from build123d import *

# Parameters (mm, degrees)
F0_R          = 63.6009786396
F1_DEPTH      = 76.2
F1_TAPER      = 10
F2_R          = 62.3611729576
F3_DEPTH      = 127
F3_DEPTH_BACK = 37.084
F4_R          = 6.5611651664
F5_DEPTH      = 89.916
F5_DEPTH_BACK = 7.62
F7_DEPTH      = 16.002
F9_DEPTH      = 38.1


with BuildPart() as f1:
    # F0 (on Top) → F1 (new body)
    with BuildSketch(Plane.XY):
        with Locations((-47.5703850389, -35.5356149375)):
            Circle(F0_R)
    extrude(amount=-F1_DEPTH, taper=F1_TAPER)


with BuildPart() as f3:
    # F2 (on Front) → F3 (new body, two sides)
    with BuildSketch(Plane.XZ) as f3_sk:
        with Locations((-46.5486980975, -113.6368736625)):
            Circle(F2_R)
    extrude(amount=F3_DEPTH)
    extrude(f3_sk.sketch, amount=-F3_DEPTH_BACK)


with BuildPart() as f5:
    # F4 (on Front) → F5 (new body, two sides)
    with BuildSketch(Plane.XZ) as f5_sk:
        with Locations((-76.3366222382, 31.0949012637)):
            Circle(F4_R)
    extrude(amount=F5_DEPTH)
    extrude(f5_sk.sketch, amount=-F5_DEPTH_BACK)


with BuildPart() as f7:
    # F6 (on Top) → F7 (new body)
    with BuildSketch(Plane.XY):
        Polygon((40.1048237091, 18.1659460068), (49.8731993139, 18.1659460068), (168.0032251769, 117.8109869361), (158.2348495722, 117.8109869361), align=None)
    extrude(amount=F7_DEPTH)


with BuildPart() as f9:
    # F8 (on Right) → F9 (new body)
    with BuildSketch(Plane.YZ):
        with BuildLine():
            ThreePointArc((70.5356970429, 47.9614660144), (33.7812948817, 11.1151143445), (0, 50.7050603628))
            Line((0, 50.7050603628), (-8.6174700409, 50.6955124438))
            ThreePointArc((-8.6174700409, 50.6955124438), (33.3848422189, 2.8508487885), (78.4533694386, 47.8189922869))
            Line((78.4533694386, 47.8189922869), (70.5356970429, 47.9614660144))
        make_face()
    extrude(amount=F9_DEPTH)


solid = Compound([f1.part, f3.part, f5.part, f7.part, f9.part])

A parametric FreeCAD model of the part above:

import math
import FreeCAD as App
import Part
import Sketcher
from FreeCAD import Vector
Q = App.Units.Quantity


def add_polygon(sketch, points):
    """Adds a closed chain of lines whose ends are joined by coincident constraints."""
    first, n = sketch.GeometryCount, len(points)
    for a, b in zip(points, points[1:] + points[:1]):
        sketch.addGeometry(Part.LineSegment(App.Vector(*a, 0), App.Vector(*b, 0)), False)
    for i in range(n):
        sketch.addConstraint(Sketcher.Constraint("Coincident", first + i, 2, first + (i + 1) % n, 1))

doc = App.newDocument("Part")
body = doc.addObject("PartDesign::Body", "Body")

# Sketch on XY plane
sketch1 = body.newObject("Sketcher::SketchObject", "Sketch")
sketch1.AttachmentSupport = (doc.getObject("XY_Plane"), [""])
sketch1.MapMode = "FlatFace"
sketch1.addGeometry(Part.Circle(Vector(-48, -36, 0), Vector(0, 0, 1), 64), False)
sketch1.addConstraint(Sketcher.Constraint("Diameter", 0, Q("127.201957 mm")))
sketch1.addConstraint(Sketcher.Constraint("DistanceX", 0, 3, -1, 1, Q("47.570385 mm")))
sketch1.addConstraint(Sketcher.Constraint("DistanceY", 0, 3, -1, 1, Q("35.535615 mm")))
pad1 = body.newObject("PartDesign::Pad", "Pad")
pad1.Profile = sketch1
pad1.Length = Q("3 in")
pad1.Reversed = True
pad1.TaperAngle = -10
body2 = doc.addObject("PartDesign::Body", "Body001")

# Sketch on XZ plane
sketch2 = body2.newObject("Sketcher::SketchObject", "Sketch001")
sketch2.AttachmentSupport = (doc.getObject("XZ_Plane001"), [""])
sketch2.MapMode = "FlatFace"
sketch2.addGeometry(Part.Circle(Vector(-47, -114, 0), Vector(0, 0, 1), 62), False)
sketch2.addConstraint(Sketcher.Constraint("Diameter", 0, Q("124.722346 mm")))
sketch2.addConstraint(Sketcher.Constraint("DistanceX", 0, 3, -1, 1, Q("46.548698 mm")))
sketch2.addConstraint(Sketcher.Constraint("DistanceY", 0, 3, -1, 1, Q("113.636874 mm")))
pad2 = body2.newObject("PartDesign::Pad", "Pad001")
pad2.Profile = sketch2
pad2.Type = "TwoLengths"
pad2.Length = Q("5 in")
pad2.Length2 = Q("1.46 in")
body3 = doc.addObject("PartDesign::Body", "Body002")

# Sketch on XZ plane
sketch3 = body3.newObject("Sketcher::SketchObject", "Sketch002")
sketch3.AttachmentSupport = (doc.getObject("XZ_Plane002"), [""])
sketch3.MapMode = "FlatFace"
sketch3.addGeometry(Part.Circle(Vector(-76, 31, 0), Vector(0, 0, 1), 7), False)
sketch3.addConstraint(Sketcher.Constraint("Diameter", 0, Q("13.12233 mm")))
sketch3.addConstraint(Sketcher.Constraint("DistanceY", -1, 1, 0, 3, Q("31.094901 mm")))
sketch3.addConstraint(Sketcher.Constraint("DistanceX", 0, 3, -1, 1, Q("76.336622 mm")))
pad3 = body3.newObject("PartDesign::Pad", "Pad002")
pad3.Profile = sketch3
pad3.Type = "TwoLengths"
pad3.Length = Q("3.54 in")
pad3.Length2 = Q("0.3 in")
body4 = doc.addObject("PartDesign::Body", "Body003")

# Sketch on XY plane
sketch4 = body4.newObject("Sketcher::SketchObject", "Sketch003")
sketch4.AttachmentSupport = (doc.getObject("XY_Plane003"), [""])
sketch4.MapMode = "FlatFace"
add_polygon(sketch4, [(40, 18), (50, 18), (168, 118), (158, 118)])  # lines 0-3
sketch4.addConstraint(Sketcher.Constraint("Horizontal", 0))
sketch4.addConstraint(Sketcher.Constraint("Horizontal", 2))
sketch4.addConstraint(Sketcher.Constraint("Parallel", 1, 3))
sketch4.addConstraint(Sketcher.Constraint("DistanceX", -1, 1, 0, 2, Q("49.873199 mm")))
sketch4.addConstraint(Sketcher.Constraint("DistanceX", 3, 2, 1, 2, Q("127.898401 mm")))
sketch4.addConstraint(Sketcher.Constraint("DistanceX", 0, 1, 0, 2, Q("9.768376 mm")))
sketch4.addConstraint(Sketcher.Constraint("DistanceY", 0, 2, 1, 2, Q("99.645041 mm")))
sketch4.addConstraint(Sketcher.Constraint("DistanceY", -1, 1, 0, 2, Q("18.165946 mm")))
pad4 = body4.newObject("PartDesign::Pad", "Pad003")
pad4.Profile = sketch4
pad4.Length = Q("0.63 in")
body5 = doc.addObject("PartDesign::Body", "Body004")

# Sketch on YZ plane
sketch5 = body5.newObject("Sketcher::SketchObject", "Sketch004")
sketch5.AttachmentSupport = (doc.getObject("YZ_Plane004"), [""])
sketch5.MapMode = "FlatFace"
sketch5.addGeometry(Part.ArcOfCircle(Part.Circle(Vector(35, 46, 0), Vector(0, 0, 1), 35), math.radians(173), math.radians(362)), False)
sketch5.addGeometry(Part.LineSegment(Vector(0, 51, 0), Vector(-9, 51, 0)), False)
sketch5.addGeometry(Part.ArcOfCircle(Part.Circle(Vector(35, 46, 0), Vector(0, 0, 1), 44), math.radians(174), math.radians(362)), False)
sketch5.addGeometry(Part.LineSegment(Vector(78, 48, 0), Vector(71, 48, 0)), False)
sketch5.addConstraint(Sketcher.Constraint("Coincident", 0, 1, 1, 1))
sketch5.addConstraint(Sketcher.Constraint("Coincident", 1, 2, 2, 1))
sketch5.addConstraint(Sketcher.Constraint("Coincident", 2, 2, 3, 1))
sketch5.addConstraint(Sketcher.Constraint("Coincident", 3, 2, 0, 2))
sketch5.addConstraint(Sketcher.Constraint("PointOnObject", 0, 1, -2))
sketch5.addConstraint(Sketcher.Constraint("Radius", 0, Q("35.40848 mm")))
sketch5.addConstraint(Sketcher.Constraint("Radius", 2, Q("43.648028 mm")))
sketch5.addConstraint(Sketcher.Constraint("DistanceX", -1, 1, 0, 3, Q("35.157521 mm")))
sketch5.addConstraint(Sketcher.Constraint("DistanceY", -1, 1, 0, 3, Q("46.496839 mm")))
sketch5.addConstraint(Sketcher.Constraint("DistanceX", 1, 2, -1, 1, Q("8.61747 mm")))
sketch5.addConstraint(Sketcher.Constraint("DistanceX", -1, 1, 2, 2, Q("78.453369 mm")))
sketch5.addConstraint(Sketcher.Constraint("DistanceY", 2, 2, 0, 1, Q("2.886068 mm")))
sketch5.addConstraint(Sketcher.Constraint("DistanceY", 2, 2, 1, 2, Q("2.87652 mm")))
sketch5.addConstraint(Sketcher.Constraint("DistanceX", 2, 3, 3, 2, Q("35.709661 mm")))
pad5 = body5.newObject("PartDesign::Pad", "Pad004")
pad5.Profile = sketch5
pad5.Length = Q("1.5 in")

doc.recompute()
